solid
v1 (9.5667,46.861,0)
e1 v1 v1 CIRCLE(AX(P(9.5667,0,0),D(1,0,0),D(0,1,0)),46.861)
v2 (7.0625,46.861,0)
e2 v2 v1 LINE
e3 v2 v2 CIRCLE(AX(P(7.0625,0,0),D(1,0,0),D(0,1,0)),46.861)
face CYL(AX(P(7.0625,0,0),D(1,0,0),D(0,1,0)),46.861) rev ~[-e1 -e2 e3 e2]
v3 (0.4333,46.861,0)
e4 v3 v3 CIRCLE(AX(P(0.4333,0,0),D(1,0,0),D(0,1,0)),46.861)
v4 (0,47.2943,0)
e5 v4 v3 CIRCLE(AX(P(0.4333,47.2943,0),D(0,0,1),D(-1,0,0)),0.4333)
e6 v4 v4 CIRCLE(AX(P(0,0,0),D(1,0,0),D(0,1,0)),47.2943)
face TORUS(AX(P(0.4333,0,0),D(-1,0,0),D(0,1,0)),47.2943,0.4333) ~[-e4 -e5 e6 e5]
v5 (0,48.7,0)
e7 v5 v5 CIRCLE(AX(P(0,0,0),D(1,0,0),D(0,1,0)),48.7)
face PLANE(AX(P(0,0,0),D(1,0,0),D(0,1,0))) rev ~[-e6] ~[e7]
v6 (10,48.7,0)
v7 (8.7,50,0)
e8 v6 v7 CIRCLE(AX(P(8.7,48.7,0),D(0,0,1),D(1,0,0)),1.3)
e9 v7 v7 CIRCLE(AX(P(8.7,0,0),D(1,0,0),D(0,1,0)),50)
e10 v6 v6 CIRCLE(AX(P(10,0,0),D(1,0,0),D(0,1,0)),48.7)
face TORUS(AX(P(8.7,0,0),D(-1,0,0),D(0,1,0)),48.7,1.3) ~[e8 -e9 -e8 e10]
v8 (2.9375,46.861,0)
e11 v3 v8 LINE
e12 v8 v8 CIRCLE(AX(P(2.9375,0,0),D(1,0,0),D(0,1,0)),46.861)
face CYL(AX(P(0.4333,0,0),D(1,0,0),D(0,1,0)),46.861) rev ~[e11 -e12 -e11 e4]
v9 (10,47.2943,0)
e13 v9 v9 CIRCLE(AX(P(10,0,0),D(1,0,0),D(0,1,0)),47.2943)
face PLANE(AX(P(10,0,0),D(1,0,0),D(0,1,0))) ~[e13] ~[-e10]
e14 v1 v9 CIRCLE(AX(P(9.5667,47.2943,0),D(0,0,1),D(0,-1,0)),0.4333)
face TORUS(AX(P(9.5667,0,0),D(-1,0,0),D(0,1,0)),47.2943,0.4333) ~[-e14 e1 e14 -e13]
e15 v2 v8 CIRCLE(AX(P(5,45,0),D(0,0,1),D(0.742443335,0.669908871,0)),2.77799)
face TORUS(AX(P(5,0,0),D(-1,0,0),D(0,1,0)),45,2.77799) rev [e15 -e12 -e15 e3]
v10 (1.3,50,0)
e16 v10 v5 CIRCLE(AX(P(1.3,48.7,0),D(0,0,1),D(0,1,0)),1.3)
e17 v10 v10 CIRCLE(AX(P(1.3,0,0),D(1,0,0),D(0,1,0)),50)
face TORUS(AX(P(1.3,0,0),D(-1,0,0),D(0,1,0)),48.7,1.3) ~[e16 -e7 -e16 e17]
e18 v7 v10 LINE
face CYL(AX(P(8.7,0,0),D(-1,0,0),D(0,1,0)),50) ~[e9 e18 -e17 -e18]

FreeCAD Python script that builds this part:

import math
import FreeCAD as App
import Part
import Sketcher

V = App.Vector
Q = App.Units.Quantity

doc = App.newDocument("Part")
body = doc.addObject("PartDesign::Body", "Body")

sketch1 = doc.addObject("Sketcher::SketchObject", "Sketch")
body.addObject(sketch1)
sketch1.AttachmentSupport = (doc.XY_Plane, [""])
sketch1.MapMode = "FlatFace"
sketch1.addGeometry(Part.ArcOfCircle(Part.Circle(V(1.3, 48.7, 0), V(0, 0, 1), 1.3), math.radians(90), math.radians(180)), False)
sketch1.addGeometry(Part.LineSegment(V(0, 48.7, 0), V(0, 47.29, 0)), False)
sketch1.addGeometry(Part.ArcOfCircle(Part.Circle(V(0.43, 47.29, 0), V(0, 0, 1), 0.43), math.radians(180), math.radians(270)), False)
sketch1.addGeometry(Part.LineSegment(V(0.43, 46.86, 0), V(2.94, 46.86, 0)), False)
sketch1.addGeometry(Part.ArcOfCircle(Part.Circle(V(5, 45, 0), V(0, 0, 1), 2.78), math.radians(42), math.radians(138)), False)
sketch1.addGeometry(Part.LineSegment(V(7.06, 46.86, 0), V(9.57, 46.86, 0)), False)
sketch1.addGeometry(Part.ArcOfCircle(Part.Circle(V(9.57, 47.29, 0), V(0, 0, 1), 0.43), math.radians(-90), math.radians(0)), False)
sketch1.addGeometry(Part.LineSegment(V(10, 47.29, 0), V(10, 48.7, 0)), False)
sketch1.addGeometry(Part.ArcOfCircle(Part.Circle(V(8.7, 48.7, 0), V(0, 0, 1), 1.3), math.radians(0), math.radians(90)), False)
sketch1.addGeometry(Part.LineSegment(V(8.7, 50, 0), V(1.3, 50, 0)), False)
sketch1.addConstraint(Sketcher.Constraint("Tangent", 0, 2, 1, 1))
sketch1.addConstraint(Sketcher.Constraint("Tangent", 1, 2, 2, 1))
sketch1.addConstraint(Sketcher.Constraint("Tangent", 2, 2, 3, 1))
sketch1.addConstraint(Sketcher.Constraint("Coincident", 3, 2, 4, 2))
sketch1.addConstraint(Sketcher.Constraint("Coincident", 4, 1, 5, 1))
sketch1.addConstraint(Sketcher.Constraint("Tangent", 5, 2, 6, 1))
sketch1.addConstraint(Sketcher.Constraint("Tangent", 6, 2, 7, 1))
sketch1.addConstraint(Sketcher.Constraint("Tangent", 7, 2, 8, 1))
sketch1.addConstraint(Sketcher.Constraint("Tangent", 8, 2, 9, 1))
sketch1.addConstraint(Sketcher.Constraint("Tangent", 9, 2, 0, 1))
sketch1.addConstraint(Sketcher.Constraint("Vertical", 1))
sketch1.addConstraint(Sketcher.Constraint("Horizontal", 3))
sketch1.addConstraint(Sketcher.Constraint("Horizontal", 5))
sketch1.addConstraint(Sketcher.Constraint("Vertical", 7))
sketch1.addConstraint(Sketcher.Constraint("Horizontal", 9))
sketch1.addConstraint(Sketcher.Constraint("Equal", 2, 6))
sketch1.addConstraint(Sketcher.Constraint("Equal", 0, 8))
sketch1.addConstraint(Sketcher.Constraint("PointOnObject", 0, 2, -2))
sketch1.addConstraint(Sketcher.Constraint("Horizontal", 2, 3, 6, 3))
sketch1.addConstraint(Sketcher.Constraint("Equal", 3, 5))
sketch1.addConstraint(Sketcher.Constraint("Radius", 0, Q("1.3 mm")))
sketch1.addConstraint(Sketcher.Constraint("DistanceX", 9, 2, 9, 1, Q("7.4 mm")))
sketch1.addConstraint(Sketcher.Constraint("DistanceY", -1, 1, 4, 3, Q("45 mm")))
sketch1.addConstraint(Sketcher.Constraint("DistanceY", -1, 1, 8, 2, Q("50 mm")))
sketch1.addConstraint(Sketcher.Constraint("Radius", 4, Q("2.778 mm")))
sketch1.addConstraint(Sketcher.Constraint("Radius", 2, Q("0.4333 mm")))
sketch1.addConstraint(Sketcher.Constraint("DistanceX", 3, 1, 3, 2, Q("2.5042 mm")))
revolution = doc.addObject("PartDesign::Revolution", "Revolution")
body.addObject(revolution)
revolution.Profile = sketch1
revolution.ReferenceAxis = (sketch1, ["H_Axis"])
revolution.Angle = 360

doc.recompute()
